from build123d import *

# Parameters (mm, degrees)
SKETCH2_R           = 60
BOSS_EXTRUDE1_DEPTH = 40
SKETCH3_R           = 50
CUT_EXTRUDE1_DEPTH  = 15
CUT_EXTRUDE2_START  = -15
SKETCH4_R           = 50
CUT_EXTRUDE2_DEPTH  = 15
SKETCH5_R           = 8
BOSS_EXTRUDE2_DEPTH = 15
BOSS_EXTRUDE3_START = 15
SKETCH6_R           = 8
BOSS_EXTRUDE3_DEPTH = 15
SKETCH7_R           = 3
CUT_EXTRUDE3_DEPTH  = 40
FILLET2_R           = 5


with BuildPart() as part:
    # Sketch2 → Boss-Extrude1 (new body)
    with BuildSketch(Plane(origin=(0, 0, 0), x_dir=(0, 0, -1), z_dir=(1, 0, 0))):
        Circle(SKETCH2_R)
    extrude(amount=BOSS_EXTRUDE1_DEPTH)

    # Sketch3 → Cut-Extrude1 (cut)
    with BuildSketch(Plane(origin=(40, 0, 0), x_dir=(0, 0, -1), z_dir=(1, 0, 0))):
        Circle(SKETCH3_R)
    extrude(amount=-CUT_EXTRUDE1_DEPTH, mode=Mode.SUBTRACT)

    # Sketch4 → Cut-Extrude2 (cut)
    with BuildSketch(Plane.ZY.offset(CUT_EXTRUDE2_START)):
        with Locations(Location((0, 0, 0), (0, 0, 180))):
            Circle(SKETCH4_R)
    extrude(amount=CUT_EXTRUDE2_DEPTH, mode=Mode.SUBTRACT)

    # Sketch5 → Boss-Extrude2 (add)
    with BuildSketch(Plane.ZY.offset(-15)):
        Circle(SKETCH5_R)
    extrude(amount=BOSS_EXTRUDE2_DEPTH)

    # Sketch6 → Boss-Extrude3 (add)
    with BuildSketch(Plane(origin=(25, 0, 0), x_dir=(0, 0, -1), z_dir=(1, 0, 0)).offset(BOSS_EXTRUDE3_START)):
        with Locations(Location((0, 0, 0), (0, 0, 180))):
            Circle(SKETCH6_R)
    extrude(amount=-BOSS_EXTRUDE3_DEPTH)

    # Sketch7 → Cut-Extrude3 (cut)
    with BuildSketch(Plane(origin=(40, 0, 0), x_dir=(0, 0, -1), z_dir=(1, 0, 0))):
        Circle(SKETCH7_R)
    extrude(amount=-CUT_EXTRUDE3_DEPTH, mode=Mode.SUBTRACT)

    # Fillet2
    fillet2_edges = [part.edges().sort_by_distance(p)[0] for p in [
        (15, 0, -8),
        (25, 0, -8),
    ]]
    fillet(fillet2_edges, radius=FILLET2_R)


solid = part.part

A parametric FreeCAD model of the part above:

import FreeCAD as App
import Part
import Sketcher


def edges_at(feature, points):
    """Names of the edges that pass closest to the given points."""
    edges = feature.Shape.Edges
    near = lambda p: min(range(len(edges)), key=lambda i: edges[i].distToShape(Part.Vertex(*p))[0])
    return sorted({f"Edge{near(p) + 1}" for p in points})

doc = App.newDocument("Part")
body = doc.addObject("PartDesign::Body", "Body")

sketch1 = body.newObject("Sketcher::SketchObject", "Sketch")
sketch1.AttachmentSupport = (doc.getObject("YZ_Plane"), [""])
sketch1.MapMode = "FlatFace"
sketch1.addGeometry(Part.Circle(App.Vector(0, 0, 0), App.Vector(0, 0, 1), 60), False)
sketch1.addConstraint(Sketcher.Constraint("Coincident", 0, 3, -1, 1))
sketch1.addConstraint(Sketcher.Constraint("Diameter", 0, 120.0))
pad1 = body.newObject("PartDesign::Pad", "Pad")
pad1.Profile = sketch1
pad1.Length = 40

sketch2 = body.newObject("Sketcher::SketchObject", "Sketch001")
sketch2.AttachmentSupport = (doc.getObject("YZ_Plane"), [""])
sketch2.MapMode = "FlatFace"
sketch2.AttachmentOffset = App.Placement(App.Vector(0, 0, 40), App.Rotation())
sketch2.addGeometry(Part.Circle(App.Vector(0, 0, 0), App.Vector(0, 0, 1), 50), False)
sketch2.addConstraint(Sketcher.Constraint("Coincident", 0, 3, -1, 1))
sketch2.addConstraint(Sketcher.Constraint("Diameter", 0, 100.0))
pocket1 = body.newObject("PartDesign::Pocket", "Pocket")
pocket1.Profile = sketch2
pocket1.Length = 15

sketch3 = body.newObject("Sketcher::SketchObject", "Sketch002")
sketch3.AttachmentSupport = (doc.getObject("YZ_Plane"), [""])
sketch3.MapMode = "FlatFace"
sketch3.AttachmentOffset = App.Placement(App.Vector(0, 0, 15), App.Rotation())
sketch3.addGeometry(Part.Circle(App.Vector(0, 0, 0), App.Vector(0, 0, 1), 50), False)
sketch3.addConstraint(Sketcher.Constraint("Coincident", 0, 3, -1, 1))
sketch3.addConstraint(Sketcher.Constraint("Diameter", 0, 100.0))
pocket2 = body.newObject("PartDesign::Pocket", "Pocket001")
pocket2.Profile = sketch3
pocket2.Length = 15

sketch4 = body.newObject("Sketcher::SketchObject", "Sketch003")
sketch4.AttachmentSupport = (doc.getObject("YZ_Plane"), [""])
sketch4.MapMode = "FlatFace"
sketch4.AttachmentOffset = App.Placement(App.Vector(0, 0, 15), App.Rotation())
sketch4.addGeometry(Part.Circle(App.Vector(0, 0, 0), App.Vector(0, 0, 1), 8), False)
sketch4.addConstraint(Sketcher.Constraint("Coincident", 0, 3, -1, 1))
sketch4.addConstraint(Sketcher.Constraint("Diameter", 0, 16.0))
pad2 = body.newObject("PartDesign::Pad", "Pad001")
pad2.Profile = sketch4
pad2.Length = 15
pad2.Reversed = True

sketch5 = body.newObject("Sketcher::SketchObject", "Sketch004")
sketch5.AttachmentSupport = (doc.getObject("YZ_Plane"), [""])
sketch5.MapMode = "FlatFace"
sketch5.AttachmentOffset = App.Placement(App.Vector(0, 0, 40), App.Rotation())
sketch5.addGeometry(Part.Circle(App.Vector(0, 0, 0), App.Vector(0, 0, 1), 8), False)
sketch5.addConstraint(Sketcher.Constraint("Coincident", 0, 3, -1, 1))
sketch5.addConstraint(Sketcher.Constraint("Diameter", 0, 16.0))
pad3 = body.newObject("PartDesign::Pad", "Pad002")
pad3.Profile = sketch5
pad3.Length = 15
pad3.Reversed = True

sketch6 = body.newObject("Sketcher::SketchObject", "Sketch005")
sketch6.AttachmentSupport = (doc.getObject("YZ_Plane"), [""])
sketch6.MapMode = "FlatFace"
sketch6.AttachmentOffset = App.Placement(App.Vector(0, 0, 40), App.Rotation())
sketch6.addGeometry(Part.Circle(App.Vector(0, 0, 0), App.Vector(0, 0, 1), 3), False)
sketch6.addConstraint(Sketcher.Constraint("Coincident", 0, 3, -1, 1))
sketch6.addConstraint(Sketcher.Constraint("Diameter", 0, 6.0))
pocket3 = body.newObject("PartDesign::Pocket", "Pocket002")
pocket3.Profile = sketch6
pocket3.Length = 40
doc.recompute()

fillet = body.newObject("PartDesign::Fillet", "Fillet")
fillet.Base = (pocket3, edges_at(pocket3, [(15, 0, -8), (25, 0, -8)]))
fillet.Radius = 5

doc.recompute()
